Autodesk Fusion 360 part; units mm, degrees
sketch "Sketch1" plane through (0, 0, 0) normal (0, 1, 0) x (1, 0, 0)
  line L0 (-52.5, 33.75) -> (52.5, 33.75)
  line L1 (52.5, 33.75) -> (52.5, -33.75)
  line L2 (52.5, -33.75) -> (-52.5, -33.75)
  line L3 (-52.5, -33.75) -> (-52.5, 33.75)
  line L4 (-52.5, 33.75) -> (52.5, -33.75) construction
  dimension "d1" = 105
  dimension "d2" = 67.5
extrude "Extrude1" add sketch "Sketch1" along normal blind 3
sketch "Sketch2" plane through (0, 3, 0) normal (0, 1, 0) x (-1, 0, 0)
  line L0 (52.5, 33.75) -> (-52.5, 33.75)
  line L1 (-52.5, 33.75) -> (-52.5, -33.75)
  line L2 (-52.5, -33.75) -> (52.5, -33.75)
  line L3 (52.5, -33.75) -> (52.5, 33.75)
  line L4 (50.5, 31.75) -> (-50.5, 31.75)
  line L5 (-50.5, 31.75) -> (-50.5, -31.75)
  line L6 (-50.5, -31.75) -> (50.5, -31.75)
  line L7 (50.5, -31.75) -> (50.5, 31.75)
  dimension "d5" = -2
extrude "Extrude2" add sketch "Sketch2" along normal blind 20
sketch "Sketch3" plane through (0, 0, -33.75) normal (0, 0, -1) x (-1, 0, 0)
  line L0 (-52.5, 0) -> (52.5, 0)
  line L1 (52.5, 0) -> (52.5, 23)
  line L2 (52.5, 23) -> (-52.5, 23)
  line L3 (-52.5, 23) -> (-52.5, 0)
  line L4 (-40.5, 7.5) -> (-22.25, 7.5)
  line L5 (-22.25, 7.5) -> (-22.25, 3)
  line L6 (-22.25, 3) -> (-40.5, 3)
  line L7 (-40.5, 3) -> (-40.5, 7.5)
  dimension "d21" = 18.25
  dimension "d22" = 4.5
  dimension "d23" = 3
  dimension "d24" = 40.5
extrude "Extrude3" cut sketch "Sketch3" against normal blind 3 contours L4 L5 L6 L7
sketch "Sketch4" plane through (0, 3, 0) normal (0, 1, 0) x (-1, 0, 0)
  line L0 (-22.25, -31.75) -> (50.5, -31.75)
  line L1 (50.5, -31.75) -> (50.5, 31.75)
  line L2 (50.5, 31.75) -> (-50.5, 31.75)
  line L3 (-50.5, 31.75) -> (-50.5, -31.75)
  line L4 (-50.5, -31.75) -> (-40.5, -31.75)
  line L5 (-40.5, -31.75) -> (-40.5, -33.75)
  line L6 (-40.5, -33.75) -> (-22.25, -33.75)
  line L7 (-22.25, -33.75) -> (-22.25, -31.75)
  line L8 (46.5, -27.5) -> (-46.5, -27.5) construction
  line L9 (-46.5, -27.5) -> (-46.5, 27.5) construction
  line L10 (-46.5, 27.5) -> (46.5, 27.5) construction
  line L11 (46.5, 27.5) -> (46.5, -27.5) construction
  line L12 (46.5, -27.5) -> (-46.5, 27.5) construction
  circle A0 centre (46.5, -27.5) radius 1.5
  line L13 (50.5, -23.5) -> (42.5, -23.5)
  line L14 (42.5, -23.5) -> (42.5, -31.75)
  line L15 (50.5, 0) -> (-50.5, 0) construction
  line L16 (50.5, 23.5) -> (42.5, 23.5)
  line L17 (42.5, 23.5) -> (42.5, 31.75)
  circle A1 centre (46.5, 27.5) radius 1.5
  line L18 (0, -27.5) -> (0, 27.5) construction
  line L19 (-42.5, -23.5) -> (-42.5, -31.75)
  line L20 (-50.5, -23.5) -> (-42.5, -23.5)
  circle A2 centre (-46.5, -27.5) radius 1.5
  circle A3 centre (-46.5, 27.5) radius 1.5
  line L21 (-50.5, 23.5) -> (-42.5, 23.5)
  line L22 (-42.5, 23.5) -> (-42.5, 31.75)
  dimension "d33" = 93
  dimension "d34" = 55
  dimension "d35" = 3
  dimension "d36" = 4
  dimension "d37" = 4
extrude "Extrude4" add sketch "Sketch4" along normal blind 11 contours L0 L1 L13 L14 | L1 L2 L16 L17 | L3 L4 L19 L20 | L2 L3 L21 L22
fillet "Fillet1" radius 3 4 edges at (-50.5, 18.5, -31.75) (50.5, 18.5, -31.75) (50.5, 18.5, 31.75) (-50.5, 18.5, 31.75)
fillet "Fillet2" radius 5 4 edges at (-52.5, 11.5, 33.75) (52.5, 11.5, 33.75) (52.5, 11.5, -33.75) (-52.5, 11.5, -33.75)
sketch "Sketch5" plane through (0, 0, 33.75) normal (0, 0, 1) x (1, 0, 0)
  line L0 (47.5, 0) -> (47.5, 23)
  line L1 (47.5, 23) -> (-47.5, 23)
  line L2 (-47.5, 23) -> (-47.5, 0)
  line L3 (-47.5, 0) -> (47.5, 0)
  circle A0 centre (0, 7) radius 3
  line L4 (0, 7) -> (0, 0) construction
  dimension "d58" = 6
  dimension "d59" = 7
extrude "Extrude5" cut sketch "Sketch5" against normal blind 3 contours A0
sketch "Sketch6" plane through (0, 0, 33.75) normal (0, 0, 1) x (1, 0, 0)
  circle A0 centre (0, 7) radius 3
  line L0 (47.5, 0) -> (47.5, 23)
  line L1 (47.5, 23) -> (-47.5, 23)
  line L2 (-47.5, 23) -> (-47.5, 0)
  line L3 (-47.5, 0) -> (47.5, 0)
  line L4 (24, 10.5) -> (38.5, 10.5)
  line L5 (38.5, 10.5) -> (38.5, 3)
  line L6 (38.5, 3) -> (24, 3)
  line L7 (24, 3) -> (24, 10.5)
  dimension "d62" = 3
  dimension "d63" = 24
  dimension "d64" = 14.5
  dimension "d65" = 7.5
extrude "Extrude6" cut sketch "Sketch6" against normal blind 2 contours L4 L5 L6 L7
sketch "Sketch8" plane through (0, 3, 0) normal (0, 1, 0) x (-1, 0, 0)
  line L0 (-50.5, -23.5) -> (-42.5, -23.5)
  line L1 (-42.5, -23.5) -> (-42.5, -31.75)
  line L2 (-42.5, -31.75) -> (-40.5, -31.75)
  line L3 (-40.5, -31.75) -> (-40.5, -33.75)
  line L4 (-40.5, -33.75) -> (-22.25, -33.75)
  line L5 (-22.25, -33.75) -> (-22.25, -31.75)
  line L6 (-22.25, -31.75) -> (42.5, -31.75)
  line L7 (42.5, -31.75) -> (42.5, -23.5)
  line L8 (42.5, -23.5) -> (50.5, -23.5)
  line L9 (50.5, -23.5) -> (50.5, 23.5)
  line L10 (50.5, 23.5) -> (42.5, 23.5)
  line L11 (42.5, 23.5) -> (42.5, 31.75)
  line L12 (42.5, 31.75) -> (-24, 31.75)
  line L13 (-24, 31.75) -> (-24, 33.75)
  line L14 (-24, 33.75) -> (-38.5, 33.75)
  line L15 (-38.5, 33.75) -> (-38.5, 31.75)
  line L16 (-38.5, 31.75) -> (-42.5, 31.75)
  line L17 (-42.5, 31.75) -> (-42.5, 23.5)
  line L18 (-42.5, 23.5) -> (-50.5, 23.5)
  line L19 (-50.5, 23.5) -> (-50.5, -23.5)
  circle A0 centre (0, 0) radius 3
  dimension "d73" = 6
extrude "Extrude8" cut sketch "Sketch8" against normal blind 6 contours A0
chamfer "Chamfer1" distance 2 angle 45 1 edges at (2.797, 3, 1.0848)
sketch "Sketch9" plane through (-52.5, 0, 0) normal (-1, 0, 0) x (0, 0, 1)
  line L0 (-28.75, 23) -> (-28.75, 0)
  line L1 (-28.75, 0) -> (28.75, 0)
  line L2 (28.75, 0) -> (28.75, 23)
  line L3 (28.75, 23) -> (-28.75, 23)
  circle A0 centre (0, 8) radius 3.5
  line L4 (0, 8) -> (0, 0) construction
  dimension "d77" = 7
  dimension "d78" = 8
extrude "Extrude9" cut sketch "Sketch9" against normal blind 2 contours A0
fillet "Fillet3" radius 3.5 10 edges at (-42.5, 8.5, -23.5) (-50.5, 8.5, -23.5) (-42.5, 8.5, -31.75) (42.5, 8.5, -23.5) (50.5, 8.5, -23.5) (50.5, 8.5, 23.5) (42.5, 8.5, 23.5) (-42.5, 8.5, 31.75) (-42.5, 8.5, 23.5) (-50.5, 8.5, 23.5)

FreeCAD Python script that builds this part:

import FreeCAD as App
import Part
import Sketcher

V = App.Vector


def edges_at(feature, points):
    """Names of the edges that pass closest to the given points."""
    edges = feature.Shape.Edges
    near = lambda p: min(range(len(edges)), key=lambda i: edges[i].distToShape(Part.Vertex(*p))[0])
    return sorted({f"Edge{near(p) + 1}" for p in points})

doc = App.newDocument("Part")
body = doc.addObject("PartDesign::Body", "Body")

# Sketch on XZ plane
sketch1 = body.newObject("Sketcher::SketchObject", "Sketch")
sketch1.AttachmentSupport = (doc.getObject("XZ_Plane"), [""])
sketch1.MapMode = "FlatFace"
sketch1.addGeometry(Part.LineSegment(V(52.5, -33.75, 0), V(-52.5, -33.75, 0)), False)
sketch1.addGeometry(Part.LineSegment(V(-52.5, -33.75, 0), V(-52.5, 33.75, 0)), False)
sketch1.addGeometry(Part.LineSegment(V(-52.5, 33.75, 0), V(52.5, 33.75, 0)), False)
sketch1.addGeometry(Part.LineSegment(V(52.5, 33.75, 0), V(52.5, -33.75, 0)), False)
sketch1.addConstraint(Sketcher.Constraint("Coincident", 0, 2, 1, 1))
sketch1.addConstraint(Sketcher.Constraint("Coincident", 1, 2, 2, 1))
sketch1.addConstraint(Sketcher.Constraint("Coincident", 2, 2, 3, 1))
sketch1.addConstraint(Sketcher.Constraint("Coincident", 3, 2, 0, 1))
sketch1.addConstraint(Sketcher.Constraint("Horizontal", 0))
sketch1.addConstraint(Sketcher.Constraint("Vertical", 1))
sketch1.addConstraint(Sketcher.Constraint("Horizontal", 2))
sketch1.addConstraint(Sketcher.Constraint("Vertical", 3))
sketch1.addConstraint(Sketcher.Constraint("Symmetric", 0, 2, 2, 2, -1, 1))
sketch1.addConstraint(Sketcher.Constraint("DistanceX", 0, 2, 0, 1, 105.0))
sketch1.addConstraint(Sketcher.Constraint("DistanceY", 1, 1, 1, 2, 67.5))
pad1 = body.newObject("PartDesign::Pad", "Pad")
pad1.Profile = sketch1
pad1.Length = 3
pad1.Reversed = True

# Sketch on XZ plane
sketch2 = body.newObject("Sketcher::SketchObject", "Sketch001")
sketch2.AttachmentSupport = (doc.getObject("XZ_Plane"), [""])
sketch2.MapMode = "FlatFace"
sketch2.AttachmentOffset = App.Placement(V(0, 0, -3), App.Rotation())
sketch2.addGeometry(Part.LineSegment(V(-52.5, -33.75, 0), V(-52.5, 33.75, 0)), False)
sketch2.addGeometry(Part.LineSegment(V(-52.5, 33.75, 0), V(52.5, 33.75, 0)), False)
sketch2.addGeometry(Part.LineSegment(V(52.5, 33.75, 0), V(52.5, -33.75, 0)), False)
sketch2.addGeometry(Part.LineSegment(V(52.5, -33.75, 0), V(-52.5, -33.75, 0)), False)
sketch2.addGeometry(Part.LineSegment(V(50.5, 31.75, 0), V(-50.5, 31.75, 0)), False)
sketch2.addGeometry(Part.LineSegment(V(-50.5, 31.75, 0), V(-50.5, -31.75, 0)), False)
sketch2.addGeometry(Part.LineSegment(V(-50.5, -31.75, 0), V(50.5, -31.75, 0)), False)
sketch2.addGeometry(Part.LineSegment(V(50.5, -31.75, 0), V(50.5, 31.75, 0)), False)
sketch2.addConstraint(Sketcher.Constraint("Coincident", 0, 2, 1, 1))
sketch2.addConstraint(Sketcher.Constraint("Coincident", 1, 2, 2, 1))
sketch2.addConstraint(Sketcher.Constraint("Coincident", 2, 2, 3, 1))
sketch2.addConstraint(Sketcher.Constraint("Coincident", 3, 2, 0, 1))
sketch2.addConstraint(Sketcher.Constraint("Coincident", 4, 2, 5, 1))
sketch2.addConstraint(Sketcher.Constraint("Coincident", 5, 2, 6, 1))
sketch2.addConstraint(Sketcher.Constraint("Coincident", 6, 2, 7, 1))
sketch2.addConstraint(Sketcher.Constraint("Coincident", 7, 2, 4, 1))
sketch2.addConstraint(Sketcher.Constraint("Vertical", 0))
sketch2.addConstraint(Sketcher.Constraint("Horizontal", 1))
sketch2.addConstraint(Sketcher.Constraint("Vertical", 2))
sketch2.addConstraint(Sketcher.Constraint("Horizontal", 3))
sketch2.addConstraint(Sketcher.Constraint("Horizontal", 4))
sketch2.addConstraint(Sketcher.Constraint("Vertical", 5))
sketch2.addConstraint(Sketcher.Constraint("Horizontal", 6))
sketch2.addConstraint(Sketcher.Constraint("Vertical", 7))
sketch2.addConstraint(Sketcher.Constraint("Symmetric", 0, 2, 2, 2, -1, 1))
sketch2.addConstraint(Sketcher.Constraint("Symmetric", 4, 2, 6, 2, -1, 1))
sketch2.addConstraint(Sketcher.Constraint("DistanceX", 0, 2, 4, 2, 2.0))
sketch2.addConstraint(Sketcher.Constraint("DistanceY", 4, 2, 0, 2, 2.0))
sketch2.addConstraint(Sketcher.Constraint("DistanceX", 1, 1, 1, 2, 105.0))
sketch2.addConstraint(Sketcher.Constraint("DistanceY", 0, 1, 0, 2, 67.5))
pad2 = body.newObject("PartDesign::Pad", "Pad001")
pad2.Profile = sketch2
pad2.Length = 20
pad2.Reversed = True

# Sketch on XY plane
sketch3 = body.newObject("Sketcher::SketchObject", "Sketch002")
sketch3.AttachmentSupport = (doc.getObject("XY_Plane"), [""])
sketch3.MapMode = "FlatFace"
sketch3.AttachmentOffset = App.Placement(V(0, 0, -33.75), App.Rotation())
sketch3.addGeometry(Part.LineSegment(V(22.25, 7.5, 0), V(40.5, 7.5, 0)), False)
sketch3.addGeometry(Part.LineSegment(V(40.5, 7.5, 0), V(40.5, 3, 0)), False)
sketch3.addGeometry(Part.LineSegment(V(40.5, 3, 0), V(22.25, 3, 0)), False)
sketch3.addGeometry(Part.LineSegment(V(22.25, 3, 0), V(22.25, 7.5, 0)), False)
sketch3.addConstraint(Sketcher.Constraint("Coincident", 0, 2, 1, 1))
sketch3.addConstraint(Sketcher.Constraint("Coincident", 1, 2, 2, 1))
sketch3.addConstraint(Sketcher.Constraint("Coincident", 2, 2, 3, 1))
sketch3.addConstraint(Sketcher.Constraint("Coincident", 3, 2, 0, 1))
sketch3.addConstraint(Sketcher.Constraint("Horizontal", 0))
sketch3.addConstraint(Sketcher.Constraint("Vertical", 1))
sketch3.addConstraint(Sketcher.Constraint("Horizontal", 2))
sketch3.addConstraint(Sketcher.Constraint("Vertical", 3))
sketch3.addConstraint(Sketcher.Constraint("DistanceY", 1, 2, 1, 1, 4.5))
sketch3.addConstraint(Sketcher.Constraint("DistanceY", -1, 1, 1, 2, 3.0))
sketch3.addConstraint(Sketcher.Constraint("DistanceX", 0, 1, 0, 2, 18.25))
sketch3.addConstraint(Sketcher.Constraint("DistanceX", -1, 1, 0, 2, 40.5))
pocket1 = body.newObject("PartDesign::Pocket", "Pocket")
pocket1.Profile = sketch3
pocket1.Length = 3
pocket1.Reversed = True

# Sketch on XZ plane
sketch4 = body.newObject("Sketcher::SketchObject", "Sketch003")
sketch4.AttachmentSupport = (doc.getObject("XZ_Plane"), [""])
sketch4.MapMode = "FlatFace"
sketch4.AttachmentOffset = App.Placement(V(0, 0, -3), App.Rotation())
sketch4.addGeometry(Part.LineSegment(V(-42.5, -23.5, 0), V(-42.5, -31.75, 0)), False)
sketch4.addGeometry(Part.LineSegment(V(-42.5, -31.75, 0), V(-50.5, -31.75, 0)), False)
sketch4.addGeometry(Part.LineSegment(V(-50.5, -31.75, 0), V(-50.5, -23.5, 0)), False)
sketch4.addGeometry(Part.LineSegment(V(-50.5, -23.5, 0), V(-42.5, -23.5, 0)), False)
sketch4.addGeometry(Part.Circle(V(-46.5, -27.5, 0), V(0, 0, 1), 1.5), False)
sketch4.addGeometry(Part.LineSegment(V(-42.5, 23.5, 0), V(-50.5, 23.5, 0)), False)
sketch4.addGeometry(Part.LineSegment(V(-50.5, 23.5, 0), V(-50.5, 31.75, 0)), False)
sketch4.addGeometry(Part.LineSegment(V(-50.5, 31.75, 0), V(-42.5, 31.75, 0)), False)
sketch4.addGeometry(Part.LineSegment(V(-42.5, 31.75, 0), V(-42.5, 23.5, 0)), False)
sketch4.addGeometry(Part.Circle(V(-46.5, 27.5, 0), V(0, 0, 1), 1.5), False)
sketch4.addGeometry(Part.LineSegment(V(50.5, -31.75, 0), V(42.5, -31.75, 0)), False)
sketch4.addGeometry(Part.LineSegment(V(42.5, -31.75, 0), V(42.5, -23.5, 0)), False)
sketch4.addGeometry(Part.LineSegment(V(42.5, -23.5, 0), V(50.5, -23.5, 0)), False)
sketch4.addGeometry(Part.LineSegment(V(50.5, -23.5, 0), V(50.5, -31.75, 0)), False)
sketch4.addGeometry(Part.Circle(V(46.5, -27.5, 0), V(0, 0, 1), 1.5), False)
sketch4.addGeometry(Part.LineSegment(V(42.5, 23.5, 0), V(42.5, 31.75, 0)), False)
sketch4.addGeometry(Part.LineSegment(V(42.5, 31.75, 0), V(50.5, 31.75, 0)), False)
sketch4.addGeometry(Part.LineSegment(V(50.5, 31.75, 0), V(50.5, 23.5, 0)), False)
sketch4.addGeometry(Part.LineSegment(V(50.5, 23.5, 0), V(42.5, 23.5, 0)), False)
sketch4.addGeometry(Part.Circle(V(46.5, 27.5, 0), V(0, 0, 1), 1.5), False)
sketch4.addConstraint(Sketcher.Constraint("Coincident", 0, 2, 1, 1))
sketch4.addConstraint(Sketcher.Constraint("Coincident", 1, 2, 2, 1))
sketch4.addConstraint(Sketcher.Constraint("Coincident", 2, 2, 3, 1))
sketch4.addConstraint(Sketcher.Constraint("Coincident", 3, 2, 0, 1))
sketch4.addConstraint(Sketcher.Constraint("Coincident", 5, 2, 6, 1))
sketch4.addConstraint(Sketcher.Constraint("Coincident", 6, 2, 7, 1))
sketch4.addConstraint(Sketcher.Constraint("Coincident", 7, 2, 8, 1))
sketch4.addConstraint(Sketcher.Constraint("Coincident", 8, 2, 5, 1))
sketch4.addConstraint(Sketcher.Constraint("Coincident", 10, 2, 11, 1))
sketch4.addConstraint(Sketcher.Constraint("Coincident", 11, 2, 12, 1))
sketch4.addConstraint(Sketcher.Constraint("Coincident", 12, 2, 13, 1))
sketch4.addConstraint(Sketcher.Constraint("Coincident", 13, 2, 10, 1))
sketch4.addConstraint(Sketcher.Constraint("Coincident", 15, 2, 16, 1))
sketch4.addConstraint(Sketcher.Constraint("Coincident", 16, 2, 17, 1))
sketch4.addConstraint(Sketcher.Constraint("Coincident", 17, 2, 18, 1))
sketch4.addConstraint(Sketcher.Constraint("Coincident", 18, 2, 15, 1))
sketch4.addConstraint(Sketcher.Constraint("Vertical", 0))
sketch4.addConstraint(Sketcher.Constraint("Horizontal", 1))
sketch4.addConstraint(Sketcher.Constraint("Vertical", 2))
sketch4.addConstraint(Sketcher.Constraint("Horizontal", 3))
sketch4.addConstraint(Sketcher.Constraint("Horizontal", 5))
sketch4.addConstraint(Sketcher.Constraint("Vertical", 6))
sketch4.addConstraint(Sketcher.Constraint("Horizontal", 7))
sketch4.addConstraint(Sketcher.Constraint("Vertical", 8))
sketch4.addConstraint(Sketcher.Constraint("Horizontal", 10))
sketch4.addConstraint(Sketcher.Constraint("Vertical", 11))
sketch4.addConstraint(Sketcher.Constraint("Horizontal", 12))
sketch4.addConstraint(Sketcher.Constraint("Vertical", 13))
sketch4.addConstraint(Sketcher.Constraint("Vertical", 15))
sketch4.addConstraint(Sketcher.Constraint("Horizontal", 16))
sketch4.addConstraint(Sketcher.Constraint("Vertical", 17))
sketch4.addConstraint(Sketcher.Constraint("Horizontal", 18))
sketch4.addConstraint(Sketcher.Constraint("Equal", 4, 9))
sketch4.addConstraint(Sketcher.Constraint("Equal", 9, 14))
sketch4.addConstraint(Sketcher.Constraint("Equal", 14, 19))
sketch4.addConstraint(Sketcher.Constraint("Symmetric", 9, 3, 14, 3, -1, 1))
sketch4.addConstraint(Sketcher.Constraint("Symmetric", 4, 3, 19, 3, -1, 1))
sketch4.addConstraint(Sketcher.Constraint("Symmetric", 7, 2, 10, 2, -1, 1))
sketch4.addConstraint(Sketcher.Constraint("Symmetric", 5, 2, 12, 2, -1, 1))
sketch4.addConstraint(Sketcher.Constraint("Symmetric", 0, 2, 15, 2, -1, 1))
sketch4.addConstraint(Sketcher.Constraint("Symmetric", 2, 2, 17, 2, -1, 1))
sketch4.addConstraint(Sketcher.Constraint("Symmetric", 4, 3, 14, 3, -2))
sketch4.addConstraint(Sketcher.Constraint("Symmetric", 0, 2, 10, 2, -2))
sketch4.addConstraint(Sketcher.Constraint("Symmetric", 2, 2, 12, 2, -2))
sketch4.addConstraint(Sketcher.Constraint("Diameter", 4, 3.0))
sketch4.addConstraint(Sketcher.Constraint("DistanceY", 4, 3, 9, 3, 55.0))
sketch4.addConstraint(Sketcher.Constraint("DistanceX", 4, 3, 14, 3, 93.0))
sketch4.addConstraint(Sketcher.Constraint("DistanceX", 4, 3, 0, 2, 4.0))
sketch4.addConstraint(Sketcher.Constraint("DistanceX", 1, 2, 4, 3, 4.0))
sketch4.addConstraint(Sketcher.Constraint("DistanceY", 4, 3, 2, 2, 4.0))
sketch4.addConstraint(Sketcher.Constraint("DistanceY", 0, 2, 0, 1, 8.25))
pad3 = body.newObject("PartDesign::Pad", "Pad002")
pad3.Profile = sketch4
pad3.Length = 11
pad3.Reversed = True
doc.recompute()

fillet = body.newObject("PartDesign::Fillet", "Fillet")
fillet.Base = (pad3, edges_at(pad3, [
    (-50.5, 18.5, -31.75),
    (50.5, 18.5, -31.75),
    (50.5, 18.5, 31.75),
    (-50.5, 18.5, 31.75),
]))
fillet.Radius = 3
doc.recompute()

fillet2 = body.newObject("PartDesign::Fillet", "Fillet001")
fillet2.Base = (fillet, edges_at(fillet, [
    (-52.5, 11.5, 33.75),
    (52.5, 11.5, 33.75),
    (52.5, 11.5, -33.75),
    (-52.5, 11.5, -33.75),
]))
fillet2.Radius = 5

# Sketch on XY plane
sketch5 = body.newObject("Sketcher::SketchObject", "Sketch004")
sketch5.AttachmentSupport = (doc.getObject("XY_Plane"), [""])
sketch5.MapMode = "FlatFace"
sketch5.AttachmentOffset = App.Placement(V(0, 0, 33.75), App.Rotation())
sketch5.addGeometry(Part.Circle(V(0, 7, 0), V(0, 0, 1), 3), False)
sketch5.addConstraint(Sketcher.Constraint("PointOnObject", 0, 3, -2))
sketch5.addConstraint(Sketcher.Constraint("Diameter", 0, 6.0))
sketch5.addConstraint(Sketcher.Constraint("DistanceY", -1, 1, 0, 3, 7.0))
pocket2 = body.newObject("PartDesign::Pocket", "Pocket001")
pocket2.Profile = sketch5
pocket2.Length = 3

# Sketch on XY plane
sketch6 = body.newObject("Sketcher::SketchObject", "Sketch005")
sketch6.AttachmentSupport = (doc.getObject("XY_Plane"), [""])
sketch6.MapMode = "FlatFace"
sketch6.AttachmentOffset = App.Placement(V(0, 0, 33.75), App.Rotation())
sketch6.addGeometry(Part.LineSegment(V(38.5, 10.5, 0), V(24, 10.5, 0)), False)
sketch6.addGeometry(Part.LineSegment(V(24, 10.5, 0), V(24, 3, 0)), False)
sketch6.addGeometry(Part.LineSegment(V(24, 3, 0), V(38.5, 3, 0)), False)
sketch6.addGeometry(Part.LineSegment(V(38.5, 3, 0), V(38.5, 10.5, 0)), False)
sketch6.addConstraint(Sketcher.Constraint("Coincident", 0, 2, 1, 1))
sketch6.addConstraint(Sketcher.Constraint("Coincident", 1, 2, 2, 1))
sketch6.addConstraint(Sketcher.Constraint("Coincident", 2, 2, 3, 1))
sketch6.addConstraint(Sketcher.Constraint("Coincident", 3, 2, 0, 1))
sketch6.addConstraint(Sketcher.Constraint("Horizontal", 0))
sketch6.addConstraint(Sketcher.Constraint("Vertical", 1))
sketch6.addConstraint(Sketcher.Constraint("Horizontal", 2))
sketch6.addConstraint(Sketcher.Constraint("Vertical", 3))
sketch6.addConstraint(Sketcher.Constraint("DistanceX", 0, 2, 0, 1, 14.5))
sketch6.addConstraint(Sketcher.Constraint("DistanceY", 1, 2, 1, 1, 7.5))
sketch6.addConstraint(Sketcher.Constraint("DistanceX", -1, 1, 0, 2, 24.0))
sketch6.addConstraint(Sketcher.Constraint("DistanceY", -1, 1, 1, 2, 3.0))
pocket3 = body.newObject("PartDesign::Pocket", "Pocket002")
pocket3.Profile = sketch6
pocket3.Length = 2

# Sketch on XZ plane
sketch7 = body.newObject("Sketcher::SketchObject", "Sketch006")
sketch7.AttachmentSupport = (doc.getObject("XZ_Plane"), [""])
sketch7.MapMode = "FlatFace"
sketch7.AttachmentOffset = App.Placement(V(0, 0, -3), App.Rotation())
sketch7.addGeometry(Part.Circle(V(0, 0, 0), V(0, 0, 1), 3), False)
sketch7.addConstraint(Sketcher.Constraint("Coincident", 0, 3, -1, 1))
sketch7.addConstraint(Sketcher.Constraint("Diameter", 0, 6.0))
pocket4 = body.newObject("PartDesign::Pocket", "Pocket003")
pocket4.Profile = sketch7
pocket4.Length = 6
pocket4.Reversed = True
doc.recompute()

chamfer = body.newObject("PartDesign::Chamfer", "Chamfer")
chamfer.Base = (pocket4, edges_at(pocket4, [(2.797, 3, 1.085)]))
chamfer.Size = 2

# Sketch on YZ plane
sketch8 = body.newObject("Sketcher::SketchObject", "Sketch007")
sketch8.AttachmentSupport = (doc.getObject("YZ_Plane"), [""])
sketch8.MapMode = "FlatFace"
sketch8.AttachmentOffset = App.Placement(V(0, 0, -52.5), App.Rotation())
sketch8.addGeometry(Part.Circle(V(8, 0, 0), V(0, 0, 1), 3.5), False)
sketch8.addConstraint(Sketcher.Constraint("PointOnObject", 0, 3, -1))
sketch8.addConstraint(Sketcher.Constraint("Diameter", 0, 7.0))
sketch8.addConstraint(Sketcher.Constraint("DistanceX", -1, 1, 0, 3, 8.0))
pocket5 = body.newObject("PartDesign::Pocket", "Pocket004")
pocket5.Profile = sketch8
pocket5.Length = 2
pocket5.Reversed = True
doc.recompute()

fillet3 = body.newObject("PartDesign::Fillet", "Fillet002")
fillet3.Base = (pocket5, edges_at(pocket5, [
    (-42.5, 8.5, -23.5),
    (-50.5, 8.5, -23.5),
    (-42.5, 8.5, -31.75),
    (42.5, 8.5, -23.5),
    (50.5, 8.5, -23.5),
    (50.5, 8.5, 23.5),
    (42.5, 8.5, 23.5),
    (-42.5, 8.5, 31.75),
    (-42.5, 8.5, 23.5),
    (-50.5, 8.5, 23.5),
]))
fillet3.Radius = 3.5

doc.recompute()
